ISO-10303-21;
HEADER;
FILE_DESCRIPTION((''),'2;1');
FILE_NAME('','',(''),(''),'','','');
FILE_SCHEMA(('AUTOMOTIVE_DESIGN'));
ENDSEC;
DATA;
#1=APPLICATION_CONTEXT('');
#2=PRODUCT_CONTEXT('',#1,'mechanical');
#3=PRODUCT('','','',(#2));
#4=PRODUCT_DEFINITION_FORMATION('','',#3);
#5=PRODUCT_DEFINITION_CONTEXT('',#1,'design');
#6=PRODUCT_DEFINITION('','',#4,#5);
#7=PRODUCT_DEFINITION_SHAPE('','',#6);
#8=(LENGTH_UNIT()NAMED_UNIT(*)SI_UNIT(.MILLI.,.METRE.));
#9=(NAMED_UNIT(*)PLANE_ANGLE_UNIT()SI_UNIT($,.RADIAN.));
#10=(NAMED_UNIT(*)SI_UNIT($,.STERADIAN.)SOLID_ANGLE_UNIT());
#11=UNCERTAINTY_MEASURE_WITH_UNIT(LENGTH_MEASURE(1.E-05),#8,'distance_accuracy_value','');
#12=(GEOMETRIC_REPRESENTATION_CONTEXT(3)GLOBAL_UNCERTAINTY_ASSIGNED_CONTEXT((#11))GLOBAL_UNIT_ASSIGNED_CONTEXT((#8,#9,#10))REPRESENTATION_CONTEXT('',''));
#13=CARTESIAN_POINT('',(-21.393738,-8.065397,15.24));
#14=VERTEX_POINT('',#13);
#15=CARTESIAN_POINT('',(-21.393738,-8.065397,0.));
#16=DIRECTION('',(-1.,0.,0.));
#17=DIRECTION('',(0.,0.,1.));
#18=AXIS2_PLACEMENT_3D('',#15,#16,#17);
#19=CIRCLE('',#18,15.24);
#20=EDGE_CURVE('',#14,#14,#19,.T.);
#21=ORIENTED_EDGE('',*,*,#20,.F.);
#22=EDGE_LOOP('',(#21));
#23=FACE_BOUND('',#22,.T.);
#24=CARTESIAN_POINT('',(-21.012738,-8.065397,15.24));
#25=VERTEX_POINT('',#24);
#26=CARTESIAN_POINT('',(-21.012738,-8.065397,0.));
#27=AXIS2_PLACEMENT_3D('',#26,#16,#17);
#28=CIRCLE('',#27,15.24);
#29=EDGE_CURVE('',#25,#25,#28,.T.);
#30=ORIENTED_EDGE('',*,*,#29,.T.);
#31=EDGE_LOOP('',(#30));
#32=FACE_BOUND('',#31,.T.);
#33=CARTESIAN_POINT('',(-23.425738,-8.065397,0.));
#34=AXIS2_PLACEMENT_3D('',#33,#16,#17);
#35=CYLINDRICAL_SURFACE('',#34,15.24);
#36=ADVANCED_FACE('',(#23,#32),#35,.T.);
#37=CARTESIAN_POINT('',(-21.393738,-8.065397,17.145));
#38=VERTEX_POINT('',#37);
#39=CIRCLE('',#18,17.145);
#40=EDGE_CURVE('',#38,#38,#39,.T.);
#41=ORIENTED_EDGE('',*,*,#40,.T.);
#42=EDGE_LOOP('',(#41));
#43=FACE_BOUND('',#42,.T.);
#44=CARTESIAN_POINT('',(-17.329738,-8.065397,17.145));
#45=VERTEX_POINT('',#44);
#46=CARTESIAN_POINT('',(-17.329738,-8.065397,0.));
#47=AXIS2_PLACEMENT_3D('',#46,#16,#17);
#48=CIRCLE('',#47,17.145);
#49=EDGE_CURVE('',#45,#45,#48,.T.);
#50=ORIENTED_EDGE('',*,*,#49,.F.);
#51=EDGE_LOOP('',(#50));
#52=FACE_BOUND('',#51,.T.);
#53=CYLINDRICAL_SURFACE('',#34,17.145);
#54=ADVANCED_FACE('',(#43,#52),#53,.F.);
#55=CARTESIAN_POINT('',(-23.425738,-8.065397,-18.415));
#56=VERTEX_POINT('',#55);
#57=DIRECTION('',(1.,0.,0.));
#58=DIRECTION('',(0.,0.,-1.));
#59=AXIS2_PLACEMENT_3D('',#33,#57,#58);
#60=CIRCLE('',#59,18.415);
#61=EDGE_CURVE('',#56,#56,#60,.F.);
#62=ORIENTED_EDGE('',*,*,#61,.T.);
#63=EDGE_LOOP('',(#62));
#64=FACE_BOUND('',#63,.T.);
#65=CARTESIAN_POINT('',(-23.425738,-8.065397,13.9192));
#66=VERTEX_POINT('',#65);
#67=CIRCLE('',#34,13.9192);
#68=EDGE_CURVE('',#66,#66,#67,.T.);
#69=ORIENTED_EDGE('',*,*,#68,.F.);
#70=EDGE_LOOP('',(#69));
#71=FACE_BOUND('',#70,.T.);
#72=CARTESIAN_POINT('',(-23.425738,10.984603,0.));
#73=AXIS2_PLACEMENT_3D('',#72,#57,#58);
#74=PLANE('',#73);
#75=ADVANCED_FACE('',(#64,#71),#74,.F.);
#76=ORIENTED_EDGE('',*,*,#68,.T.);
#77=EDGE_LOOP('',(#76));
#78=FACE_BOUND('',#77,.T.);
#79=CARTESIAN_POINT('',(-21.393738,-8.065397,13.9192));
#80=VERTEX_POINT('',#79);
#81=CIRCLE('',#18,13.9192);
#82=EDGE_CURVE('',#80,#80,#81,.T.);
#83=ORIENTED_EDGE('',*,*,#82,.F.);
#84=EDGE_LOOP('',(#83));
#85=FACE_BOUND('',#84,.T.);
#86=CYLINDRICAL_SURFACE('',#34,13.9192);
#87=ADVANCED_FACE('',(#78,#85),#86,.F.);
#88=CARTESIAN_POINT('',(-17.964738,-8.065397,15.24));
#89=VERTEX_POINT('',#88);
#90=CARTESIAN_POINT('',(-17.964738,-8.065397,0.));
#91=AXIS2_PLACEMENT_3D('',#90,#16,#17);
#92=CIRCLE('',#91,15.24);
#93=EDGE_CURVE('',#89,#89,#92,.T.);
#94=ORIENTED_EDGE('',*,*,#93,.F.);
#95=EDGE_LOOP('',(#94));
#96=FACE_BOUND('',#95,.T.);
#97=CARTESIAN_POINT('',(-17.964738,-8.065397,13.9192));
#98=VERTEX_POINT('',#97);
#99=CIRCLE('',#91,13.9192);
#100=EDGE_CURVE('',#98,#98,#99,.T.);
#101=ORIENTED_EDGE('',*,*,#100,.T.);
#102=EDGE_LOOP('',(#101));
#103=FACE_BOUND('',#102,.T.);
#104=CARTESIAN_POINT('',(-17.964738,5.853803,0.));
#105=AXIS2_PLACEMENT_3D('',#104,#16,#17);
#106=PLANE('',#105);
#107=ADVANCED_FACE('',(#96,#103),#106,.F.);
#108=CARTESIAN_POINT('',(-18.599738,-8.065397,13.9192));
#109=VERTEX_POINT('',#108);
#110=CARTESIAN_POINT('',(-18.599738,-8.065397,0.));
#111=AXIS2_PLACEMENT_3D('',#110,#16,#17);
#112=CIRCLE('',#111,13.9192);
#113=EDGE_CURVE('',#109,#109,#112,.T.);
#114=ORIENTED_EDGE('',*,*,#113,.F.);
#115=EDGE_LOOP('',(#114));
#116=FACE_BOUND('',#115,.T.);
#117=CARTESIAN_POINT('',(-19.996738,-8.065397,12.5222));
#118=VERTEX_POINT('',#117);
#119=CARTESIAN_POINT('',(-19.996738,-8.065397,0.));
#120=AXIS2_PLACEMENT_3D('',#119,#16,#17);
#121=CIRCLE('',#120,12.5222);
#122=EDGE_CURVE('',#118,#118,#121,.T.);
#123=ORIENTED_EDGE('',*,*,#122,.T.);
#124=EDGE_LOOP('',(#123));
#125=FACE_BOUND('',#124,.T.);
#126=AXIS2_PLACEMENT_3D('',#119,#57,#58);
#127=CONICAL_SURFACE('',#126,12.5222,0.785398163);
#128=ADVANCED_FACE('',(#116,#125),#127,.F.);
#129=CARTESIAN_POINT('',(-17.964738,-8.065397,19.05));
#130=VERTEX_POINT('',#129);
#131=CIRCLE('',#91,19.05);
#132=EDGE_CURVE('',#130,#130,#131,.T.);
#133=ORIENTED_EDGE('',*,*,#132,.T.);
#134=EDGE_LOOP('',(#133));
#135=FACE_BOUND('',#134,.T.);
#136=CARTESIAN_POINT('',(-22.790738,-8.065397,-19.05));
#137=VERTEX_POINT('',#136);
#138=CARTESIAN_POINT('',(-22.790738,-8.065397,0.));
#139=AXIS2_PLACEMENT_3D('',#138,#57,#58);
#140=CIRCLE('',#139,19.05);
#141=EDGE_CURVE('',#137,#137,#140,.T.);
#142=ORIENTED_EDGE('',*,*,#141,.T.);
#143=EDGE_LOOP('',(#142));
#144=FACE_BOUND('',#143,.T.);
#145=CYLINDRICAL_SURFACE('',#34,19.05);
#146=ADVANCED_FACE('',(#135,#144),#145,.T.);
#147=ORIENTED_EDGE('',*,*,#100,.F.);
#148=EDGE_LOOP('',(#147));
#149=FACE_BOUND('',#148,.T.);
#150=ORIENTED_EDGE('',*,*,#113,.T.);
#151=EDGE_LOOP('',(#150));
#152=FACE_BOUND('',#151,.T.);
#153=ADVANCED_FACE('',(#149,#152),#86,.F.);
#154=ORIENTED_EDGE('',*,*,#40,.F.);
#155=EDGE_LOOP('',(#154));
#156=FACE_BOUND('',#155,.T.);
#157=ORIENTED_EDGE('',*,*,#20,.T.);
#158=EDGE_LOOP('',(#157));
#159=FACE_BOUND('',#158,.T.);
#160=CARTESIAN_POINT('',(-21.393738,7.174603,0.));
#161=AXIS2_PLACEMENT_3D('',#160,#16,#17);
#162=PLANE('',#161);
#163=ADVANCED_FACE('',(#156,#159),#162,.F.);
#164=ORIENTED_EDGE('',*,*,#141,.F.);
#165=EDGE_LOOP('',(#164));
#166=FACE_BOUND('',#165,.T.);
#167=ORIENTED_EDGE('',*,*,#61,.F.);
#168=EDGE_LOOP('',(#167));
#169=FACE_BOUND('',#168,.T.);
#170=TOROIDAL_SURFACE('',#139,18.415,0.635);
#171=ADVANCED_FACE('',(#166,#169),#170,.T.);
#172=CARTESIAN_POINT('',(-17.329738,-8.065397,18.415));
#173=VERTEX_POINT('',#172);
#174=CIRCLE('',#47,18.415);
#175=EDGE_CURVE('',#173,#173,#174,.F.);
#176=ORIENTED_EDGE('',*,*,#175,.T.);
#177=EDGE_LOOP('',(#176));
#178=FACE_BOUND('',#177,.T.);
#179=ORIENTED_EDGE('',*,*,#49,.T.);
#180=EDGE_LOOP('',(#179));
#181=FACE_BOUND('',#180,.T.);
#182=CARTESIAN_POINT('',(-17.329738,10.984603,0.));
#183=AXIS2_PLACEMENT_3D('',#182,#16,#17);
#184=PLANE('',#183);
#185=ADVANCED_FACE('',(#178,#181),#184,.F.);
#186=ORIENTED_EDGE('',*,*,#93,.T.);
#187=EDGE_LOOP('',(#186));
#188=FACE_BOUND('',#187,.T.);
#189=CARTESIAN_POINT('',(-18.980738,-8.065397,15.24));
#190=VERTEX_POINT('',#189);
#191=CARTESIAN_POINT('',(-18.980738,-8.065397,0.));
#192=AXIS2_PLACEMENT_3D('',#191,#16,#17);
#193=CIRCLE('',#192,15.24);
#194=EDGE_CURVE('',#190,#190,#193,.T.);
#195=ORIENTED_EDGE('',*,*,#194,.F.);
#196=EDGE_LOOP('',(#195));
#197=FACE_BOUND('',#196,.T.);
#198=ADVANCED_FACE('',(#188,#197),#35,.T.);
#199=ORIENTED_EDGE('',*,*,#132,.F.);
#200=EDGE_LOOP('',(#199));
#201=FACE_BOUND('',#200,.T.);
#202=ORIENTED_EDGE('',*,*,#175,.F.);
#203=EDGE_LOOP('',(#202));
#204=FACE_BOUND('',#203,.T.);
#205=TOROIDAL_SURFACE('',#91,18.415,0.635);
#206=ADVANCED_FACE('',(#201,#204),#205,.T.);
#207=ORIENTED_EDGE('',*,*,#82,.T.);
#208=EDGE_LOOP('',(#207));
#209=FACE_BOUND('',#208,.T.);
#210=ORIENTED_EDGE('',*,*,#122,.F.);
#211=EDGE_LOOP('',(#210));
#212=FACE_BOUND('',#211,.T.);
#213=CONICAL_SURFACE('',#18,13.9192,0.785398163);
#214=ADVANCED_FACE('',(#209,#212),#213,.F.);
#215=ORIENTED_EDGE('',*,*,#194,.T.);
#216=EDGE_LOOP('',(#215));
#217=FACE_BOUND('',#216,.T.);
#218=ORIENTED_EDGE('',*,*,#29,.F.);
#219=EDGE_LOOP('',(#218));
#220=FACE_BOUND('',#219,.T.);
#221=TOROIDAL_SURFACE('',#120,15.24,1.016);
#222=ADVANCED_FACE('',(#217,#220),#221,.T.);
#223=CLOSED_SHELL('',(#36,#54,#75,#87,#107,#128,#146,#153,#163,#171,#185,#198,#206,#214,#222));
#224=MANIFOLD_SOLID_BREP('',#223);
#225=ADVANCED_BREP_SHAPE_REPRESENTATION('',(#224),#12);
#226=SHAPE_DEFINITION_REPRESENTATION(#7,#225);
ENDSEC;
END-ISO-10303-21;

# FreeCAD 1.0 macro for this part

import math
import FreeCAD as App
import Part
import Sketcher
Q = App.Units.Quantity


def edges_at(feature, points):
    """Names of the edges that pass closest to the given points."""
    edges = feature.Shape.Edges
    near = lambda p: min(range(len(edges)), key=lambda i: edges[i].distToShape(Part.Vertex(*p))[0])
    return sorted({f"Edge{near(p) + 1}" for p in points})

doc = App.newDocument("Part")
body = doc.addObject("PartDesign::Body", "Body")

sketch1 = body.newObject("Sketcher::SketchObject", "Sketch")
sketch1.AttachmentSupport = (doc.getObject("XY_Plane"), [""])
sketch1.MapMode = "FlatFace"
sketch1.addGeometry([
    Part.LineSegment(App.Vector(-23.425738, 5.853803, 0), App.Vector(-21.393738, 5.853803, 0)),
    Part.LineSegment(App.Vector(-21.393738, 5.853803, 0), App.Vector(-19.996738, 4.456803, 0)),
    Part.LineSegment(App.Vector(-19.996738, 4.456803, 0), App.Vector(-18.599738, 5.853803, 0)),
    Part.LineSegment(App.Vector(-18.599738, 5.853803, 0), App.Vector(-17.964738, 5.853803, 0)),
    Part.LineSegment(App.Vector(-17.964738, 5.853803, 0), App.Vector(-17.964738, 7.174603, 0)),
    Part.LineSegment(App.Vector(-17.964738, 7.174603, 0), App.Vector(-18.980738, 7.174603, 0)),
    Part.ArcOfCircle(Part.Circle(App.Vector(-19.996738, 7.174603, 0), App.Vector(0, 0, 1), 1.016), math.radians(0), math.radians(180)),
    Part.LineSegment(App.Vector(-21.012738, 7.174603, 0), App.Vector(-21.393738, 7.174603, 0)),
    Part.LineSegment(App.Vector(-21.393738, 7.174603, 0), App.Vector(-21.393738, 9.079603, 0)),
    Part.LineSegment(App.Vector(-21.393738, 9.079603, 0), App.Vector(-17.329738, 9.079603, 0)),
    Part.LineSegment(App.Vector(-17.329738, 9.079603, 0), App.Vector(-17.329738, 10.984603, 0)),
    Part.LineSegment(App.Vector(-17.329738, 10.984603, 0), App.Vector(-23.425738, 10.984603, 0)),
    Part.LineSegment(App.Vector(-23.425738, 10.984603, 0), App.Vector(-23.425738, 5.853803, 0)),
], False)
sketch1.addGeometry(Part.LineSegment(App.Vector(-23.425738, -8.065397, 0), App.Vector(-17.329738, -8.065397, 0)), True)
sketch1.addConstraint([
    Sketcher.Constraint("Coincident", 0, 2, 1, 1),
    Sketcher.Constraint("Coincident", 1, 2, 2, 1),
    Sketcher.Constraint("Coincident", 2, 2, 3, 1),
    Sketcher.Constraint("Coincident", 3, 2, 4, 1),
    Sketcher.Constraint("Coincident", 4, 2, 5, 1),
    Sketcher.Constraint("Coincident", 5, 2, 6, 1),
    Sketcher.Constraint("Coincident", 6, 2, 7, 1),
    Sketcher.Constraint("Coincident", 7, 2, 8, 1),
    Sketcher.Constraint("Coincident", 8, 2, 9, 1),
    Sketcher.Constraint("Coincident", 9, 2, 10, 1),
    Sketcher.Constraint("Coincident", 10, 2, 11, 1),
    Sketcher.Constraint("Coincident", 11, 2, 12, 1),
    Sketcher.Constraint("Coincident", 12, 2, 0, 1),
    Sketcher.Constraint("Horizontal", 0),
    Sketcher.Constraint("Horizontal", 3),
    Sketcher.Constraint("Vertical", 4),
    Sketcher.Constraint("Horizontal", 5),
    Sketcher.Constraint("Horizontal", 7),
    Sketcher.Constraint("Vertical", 8),
    Sketcher.Constraint("Horizontal", 9),
    Sketcher.Constraint("Vertical", 10),
    Sketcher.Constraint("Horizontal", 11),
    Sketcher.Constraint("Vertical", 12),
    Sketcher.Constraint("Horizontal", 13),
    Sketcher.Constraint("Perpendicular", 1, 2),
    Sketcher.Constraint("Horizontal", 0, 2, 2, 2),
    Sketcher.Constraint("Horizontal", 6, 3, 4, 2),
    Sketcher.Constraint("Horizontal", 5, 2, 6, 2),
    Sketcher.Constraint("Vertical", 6, 3, 1, 2),
    Sketcher.Constraint("Vertical", 0, 2, 7, 2),
    Sketcher.Constraint("Vertical", 12, 2, 13, 1),
    Sketcher.Constraint("Vertical", 10, 2, 13, 2),
    Sketcher.Constraint("Equal", 8, 10),
    Sketcher.Constraint("Equal", 1, 2),
    Sketcher.Constraint("Radius", 6, Q("0.04 in")),
    Sketcher.Constraint("DistanceX", 0, 1, 0, 2, Q("0.08 in")),
    Sketcher.Constraint("DistanceX", 5, 2, 5, 1, Q("0.04 in")),
    Sketcher.Constraint("DistanceX", 9, 1, 9, 2, Q("0.16 in")),
    Sketcher.Constraint("DistanceX", 3, 1, 3, 2, Q("0.025 in")),
    Sketcher.Constraint("DistanceY", 4, 1, 4, 2, Q("0.052 in")),
    Sketcher.Constraint("DistanceY", 8, 1, 8, 2, Q("0.075 in")),
    Sketcher.Constraint("DistanceY", 13, 1, 1, 2, Q("0.493 in")),
    Sketcher.Constraint("DistanceX", 6, 3, -1, 1, 19.996738),
    Sketcher.Constraint("DistanceY", -1, 1, 6, 3, 7.174603),
])
revolution = body.newObject("PartDesign::Revolution", "Revolution")
revolution.Profile = sketch1
revolution.ReferenceAxis = (sketch1, ["Axis0"])
revolution.Angle = 360
doc.recompute()

fillet = body.newObject("PartDesign::Fillet", "Fillet")
fillet.Base = (revolution, edges_at(revolution, [(-17.33, -8.065, -19.05), (-23.426, -8.065, -19.05)]))
fillet.Radius = Q("0.025 in")

doc.recompute()
